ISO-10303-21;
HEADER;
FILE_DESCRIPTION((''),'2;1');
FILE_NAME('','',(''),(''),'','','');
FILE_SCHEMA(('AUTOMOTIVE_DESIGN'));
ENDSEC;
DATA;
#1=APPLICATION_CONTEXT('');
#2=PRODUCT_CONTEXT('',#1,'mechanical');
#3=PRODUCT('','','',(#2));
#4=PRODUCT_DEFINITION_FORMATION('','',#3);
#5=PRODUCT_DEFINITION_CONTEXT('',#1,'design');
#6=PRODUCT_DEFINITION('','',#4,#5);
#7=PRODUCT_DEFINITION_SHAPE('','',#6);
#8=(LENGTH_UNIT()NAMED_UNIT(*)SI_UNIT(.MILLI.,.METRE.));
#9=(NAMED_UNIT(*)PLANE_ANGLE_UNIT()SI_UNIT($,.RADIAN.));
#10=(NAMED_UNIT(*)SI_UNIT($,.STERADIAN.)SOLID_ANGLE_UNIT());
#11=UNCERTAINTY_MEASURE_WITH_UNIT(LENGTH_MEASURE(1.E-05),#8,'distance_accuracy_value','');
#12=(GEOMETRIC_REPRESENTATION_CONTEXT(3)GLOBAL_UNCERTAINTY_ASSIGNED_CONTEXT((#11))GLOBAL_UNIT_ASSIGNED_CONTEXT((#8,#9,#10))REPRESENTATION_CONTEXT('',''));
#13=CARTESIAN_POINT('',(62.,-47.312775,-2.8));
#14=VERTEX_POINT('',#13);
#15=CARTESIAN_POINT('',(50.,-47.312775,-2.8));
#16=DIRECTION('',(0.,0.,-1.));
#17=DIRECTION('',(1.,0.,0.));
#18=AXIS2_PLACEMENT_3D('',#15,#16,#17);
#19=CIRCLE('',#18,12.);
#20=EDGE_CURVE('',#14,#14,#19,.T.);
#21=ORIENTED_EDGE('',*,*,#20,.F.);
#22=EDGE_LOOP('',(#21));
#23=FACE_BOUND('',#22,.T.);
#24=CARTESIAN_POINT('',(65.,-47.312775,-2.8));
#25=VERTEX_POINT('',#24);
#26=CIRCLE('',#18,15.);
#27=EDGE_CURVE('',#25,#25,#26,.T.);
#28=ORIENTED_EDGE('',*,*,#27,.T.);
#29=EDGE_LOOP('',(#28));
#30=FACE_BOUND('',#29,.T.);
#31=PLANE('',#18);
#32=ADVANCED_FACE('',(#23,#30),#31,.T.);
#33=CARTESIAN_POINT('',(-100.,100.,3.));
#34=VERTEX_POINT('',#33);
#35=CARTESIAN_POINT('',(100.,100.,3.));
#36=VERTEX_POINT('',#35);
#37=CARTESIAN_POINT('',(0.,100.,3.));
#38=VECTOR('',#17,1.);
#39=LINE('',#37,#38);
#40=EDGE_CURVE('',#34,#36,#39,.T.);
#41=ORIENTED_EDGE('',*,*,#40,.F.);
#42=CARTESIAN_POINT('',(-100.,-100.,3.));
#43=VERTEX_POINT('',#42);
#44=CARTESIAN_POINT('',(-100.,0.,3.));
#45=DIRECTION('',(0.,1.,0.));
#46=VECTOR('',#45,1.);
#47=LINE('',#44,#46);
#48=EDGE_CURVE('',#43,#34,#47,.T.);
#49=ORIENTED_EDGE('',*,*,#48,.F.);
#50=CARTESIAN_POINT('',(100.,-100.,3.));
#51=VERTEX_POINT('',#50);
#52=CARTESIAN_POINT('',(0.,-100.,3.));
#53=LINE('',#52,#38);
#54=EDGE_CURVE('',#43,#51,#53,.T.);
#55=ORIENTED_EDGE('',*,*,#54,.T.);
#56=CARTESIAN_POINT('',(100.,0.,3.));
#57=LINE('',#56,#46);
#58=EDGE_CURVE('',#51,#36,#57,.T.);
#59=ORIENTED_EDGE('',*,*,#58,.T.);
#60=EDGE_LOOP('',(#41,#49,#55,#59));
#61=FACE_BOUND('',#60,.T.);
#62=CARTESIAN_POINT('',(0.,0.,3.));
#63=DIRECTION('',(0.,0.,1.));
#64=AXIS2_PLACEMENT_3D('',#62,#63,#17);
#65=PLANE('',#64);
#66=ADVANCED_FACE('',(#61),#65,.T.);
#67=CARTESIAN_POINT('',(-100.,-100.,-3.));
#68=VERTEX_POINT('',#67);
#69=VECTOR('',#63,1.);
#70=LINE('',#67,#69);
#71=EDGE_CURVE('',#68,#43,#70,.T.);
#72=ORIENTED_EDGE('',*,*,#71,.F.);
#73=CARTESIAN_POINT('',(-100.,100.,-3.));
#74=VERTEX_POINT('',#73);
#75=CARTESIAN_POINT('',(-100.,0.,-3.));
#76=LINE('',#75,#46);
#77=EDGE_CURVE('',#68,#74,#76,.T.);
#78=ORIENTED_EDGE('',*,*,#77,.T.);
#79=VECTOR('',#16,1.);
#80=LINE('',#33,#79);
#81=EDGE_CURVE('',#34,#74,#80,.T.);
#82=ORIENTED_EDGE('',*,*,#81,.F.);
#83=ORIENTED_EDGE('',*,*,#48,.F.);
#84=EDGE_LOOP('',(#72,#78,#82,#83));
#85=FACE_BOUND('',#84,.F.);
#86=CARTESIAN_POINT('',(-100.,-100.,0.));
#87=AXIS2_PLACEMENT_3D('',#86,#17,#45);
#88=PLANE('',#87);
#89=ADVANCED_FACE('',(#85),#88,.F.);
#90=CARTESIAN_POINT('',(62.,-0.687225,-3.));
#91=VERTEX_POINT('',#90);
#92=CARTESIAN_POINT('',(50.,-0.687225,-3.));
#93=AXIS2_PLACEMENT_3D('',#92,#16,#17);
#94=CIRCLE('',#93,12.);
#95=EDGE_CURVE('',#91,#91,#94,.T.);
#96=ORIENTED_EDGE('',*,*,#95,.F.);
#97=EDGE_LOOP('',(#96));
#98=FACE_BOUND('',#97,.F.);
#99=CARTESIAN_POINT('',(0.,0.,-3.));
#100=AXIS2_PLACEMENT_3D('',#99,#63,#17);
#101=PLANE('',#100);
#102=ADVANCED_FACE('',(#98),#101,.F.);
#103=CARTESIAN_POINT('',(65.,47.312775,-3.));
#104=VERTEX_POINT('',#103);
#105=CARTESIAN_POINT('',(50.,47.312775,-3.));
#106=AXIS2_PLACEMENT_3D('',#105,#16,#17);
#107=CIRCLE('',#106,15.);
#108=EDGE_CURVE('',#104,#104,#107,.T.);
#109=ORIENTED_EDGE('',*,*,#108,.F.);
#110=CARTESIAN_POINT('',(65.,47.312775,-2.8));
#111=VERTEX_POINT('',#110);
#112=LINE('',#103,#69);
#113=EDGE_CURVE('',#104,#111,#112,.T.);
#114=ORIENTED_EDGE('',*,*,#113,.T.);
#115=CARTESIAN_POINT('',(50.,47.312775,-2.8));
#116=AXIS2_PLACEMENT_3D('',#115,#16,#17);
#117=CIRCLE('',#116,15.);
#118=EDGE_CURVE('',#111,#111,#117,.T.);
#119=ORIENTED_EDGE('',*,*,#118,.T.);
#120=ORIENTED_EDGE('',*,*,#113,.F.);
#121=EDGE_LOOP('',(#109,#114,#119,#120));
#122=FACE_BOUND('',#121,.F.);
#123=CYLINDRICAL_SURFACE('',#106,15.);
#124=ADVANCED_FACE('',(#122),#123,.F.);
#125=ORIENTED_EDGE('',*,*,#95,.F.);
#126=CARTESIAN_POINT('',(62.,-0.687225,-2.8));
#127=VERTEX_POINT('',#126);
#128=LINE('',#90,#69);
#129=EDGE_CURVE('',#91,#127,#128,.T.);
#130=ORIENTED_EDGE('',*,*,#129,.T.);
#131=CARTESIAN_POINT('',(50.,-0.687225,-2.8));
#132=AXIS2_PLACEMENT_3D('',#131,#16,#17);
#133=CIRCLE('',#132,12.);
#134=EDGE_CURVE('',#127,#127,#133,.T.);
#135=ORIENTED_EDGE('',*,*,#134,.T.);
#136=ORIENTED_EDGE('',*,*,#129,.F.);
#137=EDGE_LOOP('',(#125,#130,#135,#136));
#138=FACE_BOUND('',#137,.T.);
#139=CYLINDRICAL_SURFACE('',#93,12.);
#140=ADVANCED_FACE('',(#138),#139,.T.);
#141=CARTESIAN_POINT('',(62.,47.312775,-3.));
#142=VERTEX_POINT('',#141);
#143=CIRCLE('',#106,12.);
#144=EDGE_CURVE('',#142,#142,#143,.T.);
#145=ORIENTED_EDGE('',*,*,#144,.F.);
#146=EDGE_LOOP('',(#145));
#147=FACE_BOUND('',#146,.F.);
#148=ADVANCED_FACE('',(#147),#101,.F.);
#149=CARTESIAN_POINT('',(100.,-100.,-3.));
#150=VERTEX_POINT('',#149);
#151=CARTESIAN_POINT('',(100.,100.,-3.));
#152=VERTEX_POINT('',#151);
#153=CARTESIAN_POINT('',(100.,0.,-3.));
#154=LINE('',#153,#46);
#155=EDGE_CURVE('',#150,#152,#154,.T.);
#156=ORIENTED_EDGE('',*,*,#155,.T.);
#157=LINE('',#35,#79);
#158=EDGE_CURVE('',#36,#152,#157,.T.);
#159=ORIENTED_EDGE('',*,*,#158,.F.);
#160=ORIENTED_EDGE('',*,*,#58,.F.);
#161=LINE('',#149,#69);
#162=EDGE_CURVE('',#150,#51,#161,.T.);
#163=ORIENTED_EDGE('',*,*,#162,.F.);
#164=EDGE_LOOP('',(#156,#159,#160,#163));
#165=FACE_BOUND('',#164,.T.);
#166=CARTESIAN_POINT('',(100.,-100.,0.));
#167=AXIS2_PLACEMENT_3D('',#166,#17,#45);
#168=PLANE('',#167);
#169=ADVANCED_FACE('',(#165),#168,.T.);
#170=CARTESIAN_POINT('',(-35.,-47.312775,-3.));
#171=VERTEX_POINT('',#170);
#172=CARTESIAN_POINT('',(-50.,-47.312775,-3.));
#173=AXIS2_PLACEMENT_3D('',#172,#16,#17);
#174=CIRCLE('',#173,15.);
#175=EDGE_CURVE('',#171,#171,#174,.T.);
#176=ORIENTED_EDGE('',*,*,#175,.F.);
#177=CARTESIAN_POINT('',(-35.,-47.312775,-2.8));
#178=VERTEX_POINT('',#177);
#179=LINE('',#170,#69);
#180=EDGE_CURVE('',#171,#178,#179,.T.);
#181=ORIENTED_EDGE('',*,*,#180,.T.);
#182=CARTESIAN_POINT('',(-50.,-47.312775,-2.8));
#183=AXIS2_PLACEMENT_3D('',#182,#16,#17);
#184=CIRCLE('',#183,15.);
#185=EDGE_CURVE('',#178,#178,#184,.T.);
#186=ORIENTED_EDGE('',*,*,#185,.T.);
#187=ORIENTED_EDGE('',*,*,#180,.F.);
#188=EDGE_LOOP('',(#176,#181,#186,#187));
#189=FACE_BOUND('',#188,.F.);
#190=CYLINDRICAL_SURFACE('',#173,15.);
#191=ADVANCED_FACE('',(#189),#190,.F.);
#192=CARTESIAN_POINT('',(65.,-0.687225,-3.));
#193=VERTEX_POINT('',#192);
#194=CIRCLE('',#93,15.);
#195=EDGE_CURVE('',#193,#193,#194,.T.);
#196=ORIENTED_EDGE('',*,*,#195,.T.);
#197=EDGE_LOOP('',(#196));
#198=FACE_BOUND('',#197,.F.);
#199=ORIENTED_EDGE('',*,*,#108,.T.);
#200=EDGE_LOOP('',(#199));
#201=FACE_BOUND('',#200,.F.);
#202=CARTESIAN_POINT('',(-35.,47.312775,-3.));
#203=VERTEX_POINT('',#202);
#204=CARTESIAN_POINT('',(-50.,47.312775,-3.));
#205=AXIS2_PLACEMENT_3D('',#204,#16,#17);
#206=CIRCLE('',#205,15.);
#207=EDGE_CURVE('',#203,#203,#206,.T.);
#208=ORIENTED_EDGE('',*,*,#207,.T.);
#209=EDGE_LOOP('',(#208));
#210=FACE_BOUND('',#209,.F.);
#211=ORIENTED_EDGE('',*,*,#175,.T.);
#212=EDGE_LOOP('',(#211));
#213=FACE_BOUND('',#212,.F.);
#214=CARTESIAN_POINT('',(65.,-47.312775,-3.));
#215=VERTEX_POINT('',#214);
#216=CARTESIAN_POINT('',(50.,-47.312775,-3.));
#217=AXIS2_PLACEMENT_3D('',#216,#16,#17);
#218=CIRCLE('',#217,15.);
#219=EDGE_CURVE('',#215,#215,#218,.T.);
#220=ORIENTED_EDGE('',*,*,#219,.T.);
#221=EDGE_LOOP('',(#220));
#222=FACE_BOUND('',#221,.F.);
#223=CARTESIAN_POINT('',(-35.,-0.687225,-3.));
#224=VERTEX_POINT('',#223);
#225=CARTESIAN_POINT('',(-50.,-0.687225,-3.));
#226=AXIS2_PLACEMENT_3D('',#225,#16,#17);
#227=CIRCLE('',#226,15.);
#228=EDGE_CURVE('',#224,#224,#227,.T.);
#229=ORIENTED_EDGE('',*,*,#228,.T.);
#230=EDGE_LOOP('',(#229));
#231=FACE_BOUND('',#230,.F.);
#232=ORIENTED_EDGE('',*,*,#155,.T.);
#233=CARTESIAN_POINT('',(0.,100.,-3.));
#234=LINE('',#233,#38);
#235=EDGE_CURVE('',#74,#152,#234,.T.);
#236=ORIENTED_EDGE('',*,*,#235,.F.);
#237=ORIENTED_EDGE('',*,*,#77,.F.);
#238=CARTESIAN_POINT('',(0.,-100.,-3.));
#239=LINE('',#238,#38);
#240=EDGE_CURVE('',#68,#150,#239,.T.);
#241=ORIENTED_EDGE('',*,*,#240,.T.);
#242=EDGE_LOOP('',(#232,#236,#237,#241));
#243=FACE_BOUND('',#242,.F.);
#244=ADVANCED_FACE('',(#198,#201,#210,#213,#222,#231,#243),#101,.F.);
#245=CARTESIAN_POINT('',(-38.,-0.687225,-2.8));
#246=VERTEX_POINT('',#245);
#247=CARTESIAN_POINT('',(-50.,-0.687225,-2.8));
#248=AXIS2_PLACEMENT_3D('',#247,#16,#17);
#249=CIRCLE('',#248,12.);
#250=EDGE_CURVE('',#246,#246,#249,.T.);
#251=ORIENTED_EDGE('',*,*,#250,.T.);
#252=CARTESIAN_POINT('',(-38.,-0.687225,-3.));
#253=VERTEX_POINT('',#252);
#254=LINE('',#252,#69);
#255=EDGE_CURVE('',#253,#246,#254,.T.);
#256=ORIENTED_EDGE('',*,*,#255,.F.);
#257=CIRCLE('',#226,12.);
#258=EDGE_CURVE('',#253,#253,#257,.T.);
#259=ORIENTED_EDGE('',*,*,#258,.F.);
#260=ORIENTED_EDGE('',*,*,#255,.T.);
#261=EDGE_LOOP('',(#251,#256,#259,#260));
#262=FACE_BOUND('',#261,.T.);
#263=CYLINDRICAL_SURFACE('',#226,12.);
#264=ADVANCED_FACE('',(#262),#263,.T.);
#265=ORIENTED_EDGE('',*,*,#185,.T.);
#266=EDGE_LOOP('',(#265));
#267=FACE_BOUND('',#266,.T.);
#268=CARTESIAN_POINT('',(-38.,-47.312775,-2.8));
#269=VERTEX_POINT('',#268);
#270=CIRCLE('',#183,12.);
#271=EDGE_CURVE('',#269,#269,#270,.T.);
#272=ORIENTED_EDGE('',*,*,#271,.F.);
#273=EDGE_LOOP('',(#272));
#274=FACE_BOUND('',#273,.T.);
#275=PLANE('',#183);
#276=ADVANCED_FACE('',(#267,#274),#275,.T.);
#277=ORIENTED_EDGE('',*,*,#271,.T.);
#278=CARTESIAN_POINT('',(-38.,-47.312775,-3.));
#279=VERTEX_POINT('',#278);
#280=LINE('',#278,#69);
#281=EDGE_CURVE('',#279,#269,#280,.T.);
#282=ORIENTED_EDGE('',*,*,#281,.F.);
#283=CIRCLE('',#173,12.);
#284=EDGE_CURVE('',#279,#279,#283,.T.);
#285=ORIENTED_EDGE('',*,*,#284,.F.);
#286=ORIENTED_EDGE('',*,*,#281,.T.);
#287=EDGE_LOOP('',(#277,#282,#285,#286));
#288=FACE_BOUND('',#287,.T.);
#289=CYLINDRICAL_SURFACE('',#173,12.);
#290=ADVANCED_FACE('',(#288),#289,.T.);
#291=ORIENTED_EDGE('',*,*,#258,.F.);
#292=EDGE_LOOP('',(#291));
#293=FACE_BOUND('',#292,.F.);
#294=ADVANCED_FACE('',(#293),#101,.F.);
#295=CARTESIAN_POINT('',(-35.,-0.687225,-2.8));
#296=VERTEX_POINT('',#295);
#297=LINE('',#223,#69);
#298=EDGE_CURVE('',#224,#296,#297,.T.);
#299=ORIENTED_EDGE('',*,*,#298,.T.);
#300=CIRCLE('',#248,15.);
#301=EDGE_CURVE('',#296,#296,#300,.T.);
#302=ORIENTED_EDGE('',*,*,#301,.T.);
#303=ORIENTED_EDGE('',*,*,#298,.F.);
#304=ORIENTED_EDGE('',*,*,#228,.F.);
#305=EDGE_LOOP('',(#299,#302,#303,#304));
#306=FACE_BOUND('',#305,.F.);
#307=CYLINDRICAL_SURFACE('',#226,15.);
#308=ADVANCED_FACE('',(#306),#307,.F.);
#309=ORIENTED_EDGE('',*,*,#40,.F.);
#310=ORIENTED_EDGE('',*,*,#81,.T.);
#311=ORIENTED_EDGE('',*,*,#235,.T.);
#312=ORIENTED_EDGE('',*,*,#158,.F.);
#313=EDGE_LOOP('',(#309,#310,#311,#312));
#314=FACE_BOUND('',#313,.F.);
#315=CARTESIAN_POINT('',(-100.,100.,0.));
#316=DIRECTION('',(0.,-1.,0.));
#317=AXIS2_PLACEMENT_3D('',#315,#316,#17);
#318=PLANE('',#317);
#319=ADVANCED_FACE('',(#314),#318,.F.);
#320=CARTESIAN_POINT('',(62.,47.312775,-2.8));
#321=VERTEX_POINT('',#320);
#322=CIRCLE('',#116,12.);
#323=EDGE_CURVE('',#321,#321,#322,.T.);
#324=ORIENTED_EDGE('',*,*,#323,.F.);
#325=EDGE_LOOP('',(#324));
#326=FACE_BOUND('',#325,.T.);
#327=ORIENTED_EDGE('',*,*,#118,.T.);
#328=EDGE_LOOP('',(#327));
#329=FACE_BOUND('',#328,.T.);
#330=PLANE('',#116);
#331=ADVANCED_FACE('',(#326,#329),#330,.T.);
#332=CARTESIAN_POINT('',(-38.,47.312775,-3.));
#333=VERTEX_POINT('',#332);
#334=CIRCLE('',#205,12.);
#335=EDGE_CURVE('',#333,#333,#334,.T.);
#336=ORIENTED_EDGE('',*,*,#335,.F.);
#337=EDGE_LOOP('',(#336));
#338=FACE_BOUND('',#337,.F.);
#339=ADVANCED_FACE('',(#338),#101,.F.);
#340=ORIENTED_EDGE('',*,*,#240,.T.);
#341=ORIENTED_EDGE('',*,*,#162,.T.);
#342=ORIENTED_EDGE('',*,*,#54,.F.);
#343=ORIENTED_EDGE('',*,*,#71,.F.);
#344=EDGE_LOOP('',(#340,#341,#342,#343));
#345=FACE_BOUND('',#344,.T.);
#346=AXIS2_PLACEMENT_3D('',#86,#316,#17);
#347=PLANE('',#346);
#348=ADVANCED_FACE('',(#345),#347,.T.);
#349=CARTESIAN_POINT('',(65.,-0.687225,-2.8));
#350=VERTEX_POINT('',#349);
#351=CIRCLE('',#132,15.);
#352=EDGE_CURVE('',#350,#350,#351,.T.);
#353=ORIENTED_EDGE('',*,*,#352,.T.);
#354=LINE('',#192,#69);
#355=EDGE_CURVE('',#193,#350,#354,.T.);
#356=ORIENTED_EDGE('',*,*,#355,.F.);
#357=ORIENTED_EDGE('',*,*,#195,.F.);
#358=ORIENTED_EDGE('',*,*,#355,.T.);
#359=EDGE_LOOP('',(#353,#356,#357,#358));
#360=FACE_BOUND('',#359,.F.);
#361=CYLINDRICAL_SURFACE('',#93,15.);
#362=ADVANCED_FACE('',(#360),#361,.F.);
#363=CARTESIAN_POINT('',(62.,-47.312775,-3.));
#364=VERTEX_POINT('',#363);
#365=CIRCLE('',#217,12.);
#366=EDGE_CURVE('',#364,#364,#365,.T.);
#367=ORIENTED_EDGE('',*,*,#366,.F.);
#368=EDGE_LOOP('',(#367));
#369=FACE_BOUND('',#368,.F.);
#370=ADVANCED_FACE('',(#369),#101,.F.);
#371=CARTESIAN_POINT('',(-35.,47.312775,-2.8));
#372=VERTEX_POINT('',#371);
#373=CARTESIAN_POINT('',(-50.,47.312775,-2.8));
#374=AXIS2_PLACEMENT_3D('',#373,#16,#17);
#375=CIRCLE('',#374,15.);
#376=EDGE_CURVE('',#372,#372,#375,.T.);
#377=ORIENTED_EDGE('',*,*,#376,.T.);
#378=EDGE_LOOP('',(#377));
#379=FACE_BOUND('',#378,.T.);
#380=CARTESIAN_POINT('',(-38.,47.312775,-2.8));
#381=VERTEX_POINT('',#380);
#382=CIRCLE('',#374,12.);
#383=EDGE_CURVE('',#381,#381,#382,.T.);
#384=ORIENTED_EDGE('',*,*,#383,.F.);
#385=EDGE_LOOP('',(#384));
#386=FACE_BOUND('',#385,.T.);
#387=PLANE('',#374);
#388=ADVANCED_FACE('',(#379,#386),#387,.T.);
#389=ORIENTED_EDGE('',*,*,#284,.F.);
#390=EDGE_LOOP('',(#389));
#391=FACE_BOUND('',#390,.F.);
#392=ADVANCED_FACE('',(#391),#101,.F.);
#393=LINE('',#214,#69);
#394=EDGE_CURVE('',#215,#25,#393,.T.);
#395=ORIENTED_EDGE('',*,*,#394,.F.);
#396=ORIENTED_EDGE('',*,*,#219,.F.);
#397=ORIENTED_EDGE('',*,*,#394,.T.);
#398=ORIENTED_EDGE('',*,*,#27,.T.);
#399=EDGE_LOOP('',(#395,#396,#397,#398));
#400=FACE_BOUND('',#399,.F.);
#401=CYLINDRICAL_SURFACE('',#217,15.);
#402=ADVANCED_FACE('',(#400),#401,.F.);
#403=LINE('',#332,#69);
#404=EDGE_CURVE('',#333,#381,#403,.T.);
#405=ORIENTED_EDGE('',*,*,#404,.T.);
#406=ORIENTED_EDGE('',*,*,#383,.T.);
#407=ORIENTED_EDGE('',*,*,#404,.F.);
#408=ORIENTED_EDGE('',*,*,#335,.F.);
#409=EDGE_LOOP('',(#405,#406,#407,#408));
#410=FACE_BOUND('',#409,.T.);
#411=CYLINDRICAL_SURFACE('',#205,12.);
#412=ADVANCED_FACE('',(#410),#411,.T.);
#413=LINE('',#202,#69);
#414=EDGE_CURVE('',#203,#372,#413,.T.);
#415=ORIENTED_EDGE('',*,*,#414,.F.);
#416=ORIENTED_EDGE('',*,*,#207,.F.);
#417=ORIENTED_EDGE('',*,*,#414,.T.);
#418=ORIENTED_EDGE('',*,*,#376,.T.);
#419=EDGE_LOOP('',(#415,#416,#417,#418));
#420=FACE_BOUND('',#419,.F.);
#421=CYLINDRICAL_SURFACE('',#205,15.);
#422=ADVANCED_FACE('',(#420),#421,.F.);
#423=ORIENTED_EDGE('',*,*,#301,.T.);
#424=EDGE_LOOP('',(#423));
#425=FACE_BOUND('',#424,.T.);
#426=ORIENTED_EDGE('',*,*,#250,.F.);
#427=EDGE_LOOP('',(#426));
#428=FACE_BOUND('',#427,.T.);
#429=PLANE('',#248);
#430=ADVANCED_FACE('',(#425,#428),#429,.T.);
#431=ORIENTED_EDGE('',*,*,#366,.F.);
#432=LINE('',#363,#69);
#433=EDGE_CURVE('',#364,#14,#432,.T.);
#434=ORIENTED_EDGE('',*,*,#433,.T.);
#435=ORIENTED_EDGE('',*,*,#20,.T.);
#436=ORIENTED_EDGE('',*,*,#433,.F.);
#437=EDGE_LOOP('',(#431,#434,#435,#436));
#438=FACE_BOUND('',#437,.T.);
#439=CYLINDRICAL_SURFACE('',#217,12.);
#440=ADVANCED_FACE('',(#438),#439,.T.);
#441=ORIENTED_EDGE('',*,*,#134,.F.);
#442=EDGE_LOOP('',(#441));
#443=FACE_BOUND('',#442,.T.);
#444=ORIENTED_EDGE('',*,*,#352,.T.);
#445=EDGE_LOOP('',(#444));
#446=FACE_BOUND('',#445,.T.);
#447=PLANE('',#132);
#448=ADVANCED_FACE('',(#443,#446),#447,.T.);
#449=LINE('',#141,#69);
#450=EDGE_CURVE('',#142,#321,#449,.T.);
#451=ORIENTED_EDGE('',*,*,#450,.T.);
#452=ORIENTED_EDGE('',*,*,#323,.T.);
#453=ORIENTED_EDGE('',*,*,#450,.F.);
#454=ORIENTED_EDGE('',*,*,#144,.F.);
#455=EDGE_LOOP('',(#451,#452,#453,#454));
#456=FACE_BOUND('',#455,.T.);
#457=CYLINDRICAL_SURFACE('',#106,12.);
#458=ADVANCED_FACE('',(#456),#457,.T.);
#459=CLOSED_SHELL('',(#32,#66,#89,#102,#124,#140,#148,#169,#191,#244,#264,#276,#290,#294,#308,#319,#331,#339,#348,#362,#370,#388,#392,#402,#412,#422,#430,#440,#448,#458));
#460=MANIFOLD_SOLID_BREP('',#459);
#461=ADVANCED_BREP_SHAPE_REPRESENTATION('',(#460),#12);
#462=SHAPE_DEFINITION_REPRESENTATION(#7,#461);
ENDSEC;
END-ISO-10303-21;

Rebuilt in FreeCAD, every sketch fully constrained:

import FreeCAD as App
import Part
import Sketcher
from FreeCAD import Vector
Q = App.Units.Quantity


def add_polygon(sketch, points):
    """Adds a closed chain of lines whose ends are joined by coincident constraints."""
    first, n = sketch.GeometryCount, len(points)
    for a, b in zip(points, points[1:] + points[:1]):
        sketch.addGeometry(Part.LineSegment(App.Vector(*a, 0), App.Vector(*b, 0)), False)
    for i in range(n):
        sketch.addConstraint(Sketcher.Constraint("Coincident", first + i, 2, first + (i + 1) % n, 1))

doc = App.newDocument("Part")
body = doc.addObject("PartDesign::Body", "Body")

sketch1 = doc.addObject("Sketcher::SketchObject", "Sketch")
body.addObject(sketch1)
sketch1.AttachmentSupport = (doc.XY_Plane, [""])
sketch1.MapMode = "FlatFace"
add_polygon(sketch1, [(-100, 100), (-100, -100), (100, -100), (100, 100)])
sketch1.addConstraint(Sketcher.Constraint("Vertical", 0))
sketch1.addConstraint(Sketcher.Constraint("Horizontal", 1))
sketch1.addConstraint(Sketcher.Constraint("Vertical", 2))
sketch1.addConstraint(Sketcher.Constraint("Horizontal", 3))
sketch1.addConstraint(Sketcher.Constraint("Symmetric", 0, 2, 2, 2, -1, 1))
sketch1.addConstraint(Sketcher.Constraint("Equal", 3, 0))
sketch1.addConstraint(Sketcher.Constraint("DistanceX", 1, 1, 1, 2, Q("200 mm")))
pad1 = doc.addObject("PartDesign::Pad", "Pad")
body.addObject(pad1)
pad1.Profile = sketch1
pad1.Length = 6
pad1.Midplane = True

sketch2 = doc.addObject("Sketcher::SketchObject", "Sketch001")
body.addObject(sketch2)
sketch2.AttachmentSupport = (doc.XY_Plane, [""])
sketch2.MapMode = "FlatFace"
sketch2.AttachmentOffset = App.Placement(Vector(0, 0, -3), App.Rotation())
sketch2.addGeometry(Part.Circle(Vector(-50, -47.312775, 0), Vector(0, 0, 1), 15), False)
sketch2.addGeometry(Part.Circle(Vector(-50, -47.312775, 0), Vector(0, 0, 1), 12), False)
sketch2.addGeometry(Part.Circle(Vector(-50, -0.687225, 0), Vector(0, 0, 1), 15), False)
sketch2.addGeometry(Part.Circle(Vector(-50, -0.687225, 0), Vector(0, 0, 1), 12), False)
sketch2.addGeometry(Part.Circle(Vector(-50, 47.312775, 0), Vector(0, 0, 1), 15), False)
sketch2.addGeometry(Part.Circle(Vector(-50, 47.312775, 0), Vector(0, 0, 1), 12), False)
sketch2.addGeometry(Part.Circle(Vector(50, -47.312775, 0), Vector(0, 0, 1), 15), False)
sketch2.addGeometry(Part.Circle(Vector(50, -47.312775, 0), Vector(0, 0, 1), 12), False)
sketch2.addGeometry(Part.Circle(Vector(50, -0.687225, 0), Vector(0, 0, 1), 15), False)
sketch2.addGeometry(Part.Circle(Vector(50, -0.687225, 0), Vector(0, 0, 1), 12), False)
sketch2.addGeometry(Part.Circle(Vector(50, 47.312775, 0), Vector(0, 0, 1), 15), False)
sketch2.addGeometry(Part.Circle(Vector(50, 47.312775, 0), Vector(0, 0, 1), 12), False)
sketch2.addConstraint(Sketcher.Constraint("Coincident", 1, 3, 0, 3))
sketch2.addConstraint(Sketcher.Constraint("Coincident", 3, 3, 2, 3))
sketch2.addConstraint(Sketcher.Constraint("Coincident", 5, 3, 4, 3))
sketch2.addConstraint(Sketcher.Constraint("Coincident", 7, 3, 6, 3))
sketch2.addConstraint(Sketcher.Constraint("Coincident", 9, 3, 8, 3))
sketch2.addConstraint(Sketcher.Constraint("Coincident", 11, 3, 10, 3))
sketch2.addConstraint(Sketcher.Constraint("Equal", 0, 2))
sketch2.addConstraint(Sketcher.Constraint("Equal", 1, 3))
sketch2.addConstraint(Sketcher.Constraint("Equal", 2, 4))
sketch2.addConstraint(Sketcher.Constraint("Equal", 3, 5))
sketch2.addConstraint(Sketcher.Constraint("Equal", 4, 6))
sketch2.addConstraint(Sketcher.Constraint("Equal", 5, 7))
sketch2.addConstraint(Sketcher.Constraint("Equal", 6, 8))
sketch2.addConstraint(Sketcher.Constraint("Equal", 7, 9))
sketch2.addConstraint(Sketcher.Constraint("Equal", 8, 10))
sketch2.addConstraint(Sketcher.Constraint("Equal", 9, 11))
sketch2.addConstraint(Sketcher.Constraint("Symmetric", 4, 3, 6, 3, -1, 1))
sketch2.addConstraint(Sketcher.Constraint("Symmetric", 0, 3, 10, 3, -1, 1))
sketch2.addConstraint(Sketcher.Constraint("Symmetric", 0, 3, 6, 3, -2))
sketch2.addConstraint(Sketcher.Constraint("Symmetric", 2, 3, 8, 3, -2))
sketch2.addConstraint(Sketcher.Constraint("Vertical", 1, 3, 2, 3))
sketch2.addConstraint(Sketcher.Constraint("Diameter", 0, Q("30 mm")))
sketch2.addConstraint(Sketcher.Constraint("Diameter", 1, Q("24 mm")))
sketch2.addConstraint(Sketcher.Constraint("DistanceX", 0, 3, -1, 1, Q("50 mm")))
sketch2.addConstraint(Sketcher.Constraint("DistanceY", 2, 3, 4, 3, Q("48 mm")))
sketch2.addConstraint(Sketcher.Constraint("DistanceY", 0, 3, 2, 3, Q("46.62555 mm")))
pocket1 = doc.addObject("PartDesign::Pocket", "Pocket")
body.addObject(pocket1)
pocket1.Profile = sketch2
pocket1.Length = 0.2
pocket1.Reversed = True

doc.recompute()
